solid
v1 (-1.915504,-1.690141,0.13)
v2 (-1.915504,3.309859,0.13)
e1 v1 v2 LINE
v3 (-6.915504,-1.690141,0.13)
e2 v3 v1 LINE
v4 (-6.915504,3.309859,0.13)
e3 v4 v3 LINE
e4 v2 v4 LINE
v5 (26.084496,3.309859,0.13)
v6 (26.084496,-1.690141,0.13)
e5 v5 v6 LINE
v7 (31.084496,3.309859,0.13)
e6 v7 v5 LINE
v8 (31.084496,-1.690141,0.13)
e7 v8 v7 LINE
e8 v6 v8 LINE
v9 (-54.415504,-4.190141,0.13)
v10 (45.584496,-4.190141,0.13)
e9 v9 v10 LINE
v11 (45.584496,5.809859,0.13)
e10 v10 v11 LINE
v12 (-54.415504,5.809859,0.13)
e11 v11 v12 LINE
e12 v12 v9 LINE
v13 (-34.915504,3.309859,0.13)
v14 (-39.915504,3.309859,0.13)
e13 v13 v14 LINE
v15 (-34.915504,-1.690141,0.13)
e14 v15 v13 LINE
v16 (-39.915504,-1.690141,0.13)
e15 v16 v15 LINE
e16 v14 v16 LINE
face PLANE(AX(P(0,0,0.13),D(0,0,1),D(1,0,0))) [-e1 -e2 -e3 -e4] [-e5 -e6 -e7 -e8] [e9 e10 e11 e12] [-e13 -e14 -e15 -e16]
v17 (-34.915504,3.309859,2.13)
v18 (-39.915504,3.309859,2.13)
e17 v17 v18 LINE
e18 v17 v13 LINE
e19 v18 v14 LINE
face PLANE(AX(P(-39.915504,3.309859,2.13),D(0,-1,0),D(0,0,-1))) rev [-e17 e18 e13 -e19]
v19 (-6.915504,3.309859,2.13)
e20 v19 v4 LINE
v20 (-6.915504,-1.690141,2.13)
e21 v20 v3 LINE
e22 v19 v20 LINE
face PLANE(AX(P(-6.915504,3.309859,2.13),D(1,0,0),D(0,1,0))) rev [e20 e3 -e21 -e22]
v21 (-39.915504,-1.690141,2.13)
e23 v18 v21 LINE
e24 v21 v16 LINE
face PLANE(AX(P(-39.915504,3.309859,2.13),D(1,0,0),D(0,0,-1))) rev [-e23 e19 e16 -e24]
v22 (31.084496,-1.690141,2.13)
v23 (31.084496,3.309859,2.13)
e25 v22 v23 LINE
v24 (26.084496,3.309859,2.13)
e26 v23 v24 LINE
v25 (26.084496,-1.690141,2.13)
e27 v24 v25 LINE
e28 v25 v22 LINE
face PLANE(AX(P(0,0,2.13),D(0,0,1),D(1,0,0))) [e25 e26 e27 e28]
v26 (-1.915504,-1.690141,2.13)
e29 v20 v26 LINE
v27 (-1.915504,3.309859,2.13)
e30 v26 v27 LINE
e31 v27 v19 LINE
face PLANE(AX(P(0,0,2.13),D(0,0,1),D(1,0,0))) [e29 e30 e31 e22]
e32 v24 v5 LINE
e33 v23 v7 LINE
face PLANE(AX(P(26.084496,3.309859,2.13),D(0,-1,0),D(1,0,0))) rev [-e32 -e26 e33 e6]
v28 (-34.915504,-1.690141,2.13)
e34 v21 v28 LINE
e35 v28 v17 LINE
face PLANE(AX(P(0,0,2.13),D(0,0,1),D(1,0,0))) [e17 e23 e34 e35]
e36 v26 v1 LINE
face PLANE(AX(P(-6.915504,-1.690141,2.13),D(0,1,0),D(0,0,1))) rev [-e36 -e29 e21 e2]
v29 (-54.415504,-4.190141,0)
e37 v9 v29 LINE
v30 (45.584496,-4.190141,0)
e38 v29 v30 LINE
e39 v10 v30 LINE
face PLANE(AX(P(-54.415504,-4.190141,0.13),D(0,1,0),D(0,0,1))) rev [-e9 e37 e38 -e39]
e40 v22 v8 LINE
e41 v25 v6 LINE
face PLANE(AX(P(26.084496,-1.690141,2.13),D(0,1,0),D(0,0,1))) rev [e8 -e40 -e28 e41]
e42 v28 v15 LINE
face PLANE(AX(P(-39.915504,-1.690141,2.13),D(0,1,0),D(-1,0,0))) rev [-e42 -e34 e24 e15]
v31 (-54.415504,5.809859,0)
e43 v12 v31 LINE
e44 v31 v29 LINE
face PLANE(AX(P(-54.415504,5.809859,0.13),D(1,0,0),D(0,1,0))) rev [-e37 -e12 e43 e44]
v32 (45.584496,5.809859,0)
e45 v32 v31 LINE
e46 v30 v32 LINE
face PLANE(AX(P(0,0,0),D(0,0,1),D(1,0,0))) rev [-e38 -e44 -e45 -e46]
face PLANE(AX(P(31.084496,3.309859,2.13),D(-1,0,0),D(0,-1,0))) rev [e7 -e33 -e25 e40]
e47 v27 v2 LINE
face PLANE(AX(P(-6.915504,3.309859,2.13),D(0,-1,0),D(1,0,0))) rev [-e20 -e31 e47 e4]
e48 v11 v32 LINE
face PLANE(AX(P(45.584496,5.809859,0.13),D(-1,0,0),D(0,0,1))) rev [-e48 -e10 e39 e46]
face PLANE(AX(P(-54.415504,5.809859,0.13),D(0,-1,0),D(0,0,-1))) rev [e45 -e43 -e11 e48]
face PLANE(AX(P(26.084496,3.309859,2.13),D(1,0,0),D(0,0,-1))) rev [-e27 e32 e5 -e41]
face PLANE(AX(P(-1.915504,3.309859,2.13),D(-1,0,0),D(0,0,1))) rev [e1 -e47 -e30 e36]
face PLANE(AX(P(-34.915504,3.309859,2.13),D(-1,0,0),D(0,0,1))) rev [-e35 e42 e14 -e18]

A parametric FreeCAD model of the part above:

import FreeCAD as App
import Part
import Sketcher


def add_polygon(sketch, points):
    """Adds a closed chain of lines whose ends are joined by coincident constraints."""
    first, n = sketch.GeometryCount, len(points)
    for a, b in zip(points, points[1:] + points[:1]):
        sketch.addGeometry(Part.LineSegment(App.Vector(*a, 0), App.Vector(*b, 0)), False)
    for i in range(n):
        sketch.addConstraint(Sketcher.Constraint("Coincident", first + i, 2, first + (i + 1) % n, 1))

doc = App.newDocument("Part")
body = doc.addObject("PartDesign::Body", "Body")

sketch1 = body.newObject("Sketcher::SketchObject", "Sketch")
sketch1.AttachmentSupport = (doc.getObject("XY_Plane"), [""])
sketch1.MapMode = "FlatFace"
add_polygon(sketch1, [(-54.415504, 5.809859), (-54.415504, -4.190141), (45.584496, -4.190141), (45.584496, 5.809859)])
sketch1.addConstraint([
    Sketcher.Constraint("Vertical", 0),
    Sketcher.Constraint("Horizontal", 1),
    Sketcher.Constraint("Vertical", 2),
    Sketcher.Constraint("Horizontal", 3),
    Sketcher.Constraint("DistanceX", 1, 1, 1, 2, 100.0),
    Sketcher.Constraint("DistanceY", 0, 2, 0, 1, 10.0),
    Sketcher.Constraint("DistanceY", 0, 2, -1, 1, 4.190141),
    Sketcher.Constraint("DistanceX", 0, 2, -1, 1, 54.415504),
])
pad1 = body.newObject("PartDesign::Pad", "Pad")
pad1.Profile = sketch1
pad1.Length = 0.13

sketch2 = body.newObject("Sketcher::SketchObject", "Sketch001")
sketch2.AttachmentSupport = (doc.getObject("XY_Plane"), [""])
sketch2.MapMode = "FlatFace"
sketch2.AttachmentOffset = App.Placement(App.Vector(0, 0, 0.13), App.Rotation())
add_polygon(sketch2, [(-39.915504, 3.309859), (-39.915504, -1.690141), (-34.915504, -1.690141), (-34.915504, 3.309859)])
add_polygon(sketch2, [(-6.915504, 3.309859), (-6.915504, -1.690141), (-1.915504, -1.690141), (-1.915504, 3.309859)])
add_polygon(sketch2, [(26.084496, 3.309859), (26.084496, -1.690141), (31.084496, -1.690141), (31.084496, 3.309859)])
sketch2.addConstraint([
    Sketcher.Constraint("Vertical", 0),
    Sketcher.Constraint("Horizontal", 1),
    Sketcher.Constraint("Vertical", 2),
    Sketcher.Constraint("Horizontal", 3),
    Sketcher.Constraint("Vertical", 4),
    Sketcher.Constraint("Horizontal", 5),
    Sketcher.Constraint("Vertical", 6),
    Sketcher.Constraint("Horizontal", 7),
    Sketcher.Constraint("Vertical", 8),
    Sketcher.Constraint("Horizontal", 9),
    Sketcher.Constraint("Vertical", 10),
    Sketcher.Constraint("Horizontal", 11),
    Sketcher.Constraint("Horizontal", 1, 2, 4, 2),
    Sketcher.Constraint("Horizontal", 3, 2, 6, 2),
    Sketcher.Constraint("Horizontal", 5, 2, 8, 2),
    Sketcher.Constraint("Horizontal", 7, 2, 10, 2),
    Sketcher.Constraint("Equal", 3, 5),
    Sketcher.Constraint("Equal", 7, 9),
    Sketcher.Constraint("Equal", 11, 0),
    Sketcher.Constraint("DistanceX", 1, 1, 1, 2, 5.0),
    Sketcher.Constraint("DistanceX", 1, 2, 4, 2, 28.0),
    Sketcher.Constraint("DistanceX", 5, 2, 8, 2, 28.0),
    Sketcher.Constraint("DistanceY", 0, 2, -1, 1, 1.690141),
    Sketcher.Constraint("DistanceX", 0, 2, -1, 1, 39.915504),
])
pad2 = body.newObject("PartDesign::Pad", "Pad001")
pad2.Profile = sketch2
pad2.Length = 2

doc.recompute()
